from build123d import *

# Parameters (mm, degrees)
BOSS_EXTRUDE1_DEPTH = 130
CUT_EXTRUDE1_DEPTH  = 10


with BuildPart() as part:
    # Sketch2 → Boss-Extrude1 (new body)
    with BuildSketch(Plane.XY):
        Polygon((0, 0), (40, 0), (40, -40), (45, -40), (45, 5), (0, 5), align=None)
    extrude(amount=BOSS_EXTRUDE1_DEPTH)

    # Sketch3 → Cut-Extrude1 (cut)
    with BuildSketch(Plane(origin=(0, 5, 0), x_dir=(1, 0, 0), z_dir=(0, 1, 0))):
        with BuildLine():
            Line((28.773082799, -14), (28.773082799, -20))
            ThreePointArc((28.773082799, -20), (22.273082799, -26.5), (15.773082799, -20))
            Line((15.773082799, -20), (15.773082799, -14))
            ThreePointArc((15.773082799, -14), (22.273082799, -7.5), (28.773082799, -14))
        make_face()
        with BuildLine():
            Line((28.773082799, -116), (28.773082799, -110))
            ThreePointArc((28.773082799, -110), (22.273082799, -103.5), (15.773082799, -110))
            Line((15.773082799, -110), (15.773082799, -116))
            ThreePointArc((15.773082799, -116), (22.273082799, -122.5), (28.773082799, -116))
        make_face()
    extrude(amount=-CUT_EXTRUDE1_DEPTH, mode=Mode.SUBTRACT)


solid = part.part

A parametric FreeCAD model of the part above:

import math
import FreeCAD as App
import Part
import Sketcher
from FreeCAD import Vector


def add_polygon(sketch, points):
    """Adds a closed chain of lines whose ends are joined by coincident constraints."""
    first, n = sketch.GeometryCount, len(points)
    for a, b in zip(points, points[1:] + points[:1]):
        sketch.addGeometry(Part.LineSegment(App.Vector(*a, 0), App.Vector(*b, 0)), False)
    for i in range(n):
        sketch.addConstraint(Sketcher.Constraint("Coincident", first + i, 2, first + (i + 1) % n, 1))

doc = App.newDocument("Part")
params = doc.addObject("Spreadsheet::Sheet", "Params")
for row, (alias, value) in enumerate([
    ("sketch1_width", "40 mm"),
    ("sketch1_width2", "5 mm"),
    ("pad1_length", "130 mm"),
    ("sketch2_radius", "6.5 mm"),
    ("sketch2_height", "6 mm"),
    ("pocket1_length", "10 mm"),
], start=1):
    params.set(f"A{row}", alias)
    params.set(f"B{row}", "=" + value)
    params.setAlias(f"B{row}", alias)

body = doc.addObject("PartDesign::Body", "Body")

# Sketch on XY plane
sketch1 = body.newObject("Sketcher::SketchObject", "Sketch")
sketch1.AttachmentSupport = (doc.getObject("XY_Plane"), [""])
sketch1.MapMode = "FlatFace"
add_polygon(sketch1, [(0, 0), (40, 0), (40, -40), (45, -40), (45, 5), (0, 5)])  # lines 0-5
sketch1.addConstraint([
    Sketcher.Constraint("Horizontal", 0),
    Sketcher.Constraint("Vertical", 1),
    Sketcher.Constraint("Horizontal", 2),
    Sketcher.Constraint("Vertical", 3),
    Sketcher.Constraint("Horizontal", 4),
    Sketcher.Constraint("Vertical", 5),
    Sketcher.Constraint("Coincident", 5, 2, -1, 1),
    Sketcher.Constraint("Equal", 0, 1),
    Sketcher.Constraint("Equal", 4, 3),
    Sketcher.Constraint("DistanceX", 0, 1, 0, 2, 40.0),
    Sketcher.Constraint("DistanceX", 2, 1, 2, 2, 5.0),
])
sketch1.setExpression("Constraints[15]", "Params.sketch1_width")
sketch1.setExpression("Constraints[16]", "Params.sketch1_width2")
pad1 = body.newObject("PartDesign::Pad", "Pad")
pad1.Profile = sketch1
pad1.setExpression("Length", "Params.pad1_length")

# Sketch on XZ plane
sketch2 = body.newObject("Sketcher::SketchObject", "Sketch001")
sketch2.AttachmentSupport = (doc.getObject("XZ_Plane"), [""])
sketch2.MapMode = "FlatFace"
sketch2.AttachmentOffset = App.Placement(Vector(0, 0, -5), App.Rotation())
sketch2.addGeometry([
    Part.LineSegment(Vector(29, 20, 0), Vector(29, 14, 0)),  # 0
    Part.ArcOfCircle(Part.Circle(Vector(22, 14, 0), Vector(0, 0, 1), 6), math.radians(180), math.radians(360)),  # 1
    Part.LineSegment(Vector(16, 14, 0), Vector(16, 20, 0)),  # 2
    Part.ArcOfCircle(Part.Circle(Vector(22, 20, 0), Vector(0, 0, 1), 6), math.radians(0), math.radians(180)),  # 3
    Part.LineSegment(Vector(29, 116, 0), Vector(29, 110, 0)),  # 4
    Part.ArcOfCircle(Part.Circle(Vector(22, 110, 0), Vector(0, 0, 1), 6), math.radians(180), math.radians(360)),  # 5
    Part.LineSegment(Vector(16, 110, 0), Vector(16, 116, 0)),  # 6
    Part.ArcOfCircle(Part.Circle(Vector(22, 116, 0), Vector(0, 0, 1), 6), math.radians(0), math.radians(180)),  # 7
], False)
sketch2.addConstraint([
    Sketcher.Constraint("Tangent", 0, 2, 1, 2),
    Sketcher.Constraint("Tangent", 1, 1, 2, 1),
    Sketcher.Constraint("Tangent", 2, 2, 3, 2),
    Sketcher.Constraint("Tangent", 3, 1, 0, 1),
    Sketcher.Constraint("Tangent", 4, 2, 5, 2),
    Sketcher.Constraint("Tangent", 5, 1, 6, 1),
    Sketcher.Constraint("Tangent", 6, 2, 7, 2),
    Sketcher.Constraint("Tangent", 7, 1, 4, 1),
    Sketcher.Constraint("Vertical", 0),
    Sketcher.Constraint("Vertical", 2),
    Sketcher.Constraint("Vertical", 4),
    Sketcher.Constraint("Vertical", 6),
    Sketcher.Constraint("Equal", 3, 5),
    Sketcher.Constraint("Vertical", 3, 3, 5, 3),
    Sketcher.Constraint("Equal", 2, 4),
    Sketcher.Constraint("Radius", 1, 6.5),
    Sketcher.Constraint("DistanceY", 0, 2, 0, 1, 6.0),
    Sketcher.Constraint("DistanceY", -1, 1, 1, 3, 14.0),
    Sketcher.Constraint("DistanceY", -1, 1, 5, 3, 110.0),
    Sketcher.Constraint("DistanceX", -1, 1, 1, 3, 22.273083),
])
sketch2.setExpression("Constraints[15]", "Params.sketch2_radius")
sketch2.setExpression("Constraints[16]", "Params.sketch2_height")
pocket1 = body.newObject("PartDesign::Pocket", "Pocket")
pocket1.Profile = sketch2
pocket1.setExpression("Length", "Params.pocket1_length")
pocket1.Reversed = True

doc.recompute()
